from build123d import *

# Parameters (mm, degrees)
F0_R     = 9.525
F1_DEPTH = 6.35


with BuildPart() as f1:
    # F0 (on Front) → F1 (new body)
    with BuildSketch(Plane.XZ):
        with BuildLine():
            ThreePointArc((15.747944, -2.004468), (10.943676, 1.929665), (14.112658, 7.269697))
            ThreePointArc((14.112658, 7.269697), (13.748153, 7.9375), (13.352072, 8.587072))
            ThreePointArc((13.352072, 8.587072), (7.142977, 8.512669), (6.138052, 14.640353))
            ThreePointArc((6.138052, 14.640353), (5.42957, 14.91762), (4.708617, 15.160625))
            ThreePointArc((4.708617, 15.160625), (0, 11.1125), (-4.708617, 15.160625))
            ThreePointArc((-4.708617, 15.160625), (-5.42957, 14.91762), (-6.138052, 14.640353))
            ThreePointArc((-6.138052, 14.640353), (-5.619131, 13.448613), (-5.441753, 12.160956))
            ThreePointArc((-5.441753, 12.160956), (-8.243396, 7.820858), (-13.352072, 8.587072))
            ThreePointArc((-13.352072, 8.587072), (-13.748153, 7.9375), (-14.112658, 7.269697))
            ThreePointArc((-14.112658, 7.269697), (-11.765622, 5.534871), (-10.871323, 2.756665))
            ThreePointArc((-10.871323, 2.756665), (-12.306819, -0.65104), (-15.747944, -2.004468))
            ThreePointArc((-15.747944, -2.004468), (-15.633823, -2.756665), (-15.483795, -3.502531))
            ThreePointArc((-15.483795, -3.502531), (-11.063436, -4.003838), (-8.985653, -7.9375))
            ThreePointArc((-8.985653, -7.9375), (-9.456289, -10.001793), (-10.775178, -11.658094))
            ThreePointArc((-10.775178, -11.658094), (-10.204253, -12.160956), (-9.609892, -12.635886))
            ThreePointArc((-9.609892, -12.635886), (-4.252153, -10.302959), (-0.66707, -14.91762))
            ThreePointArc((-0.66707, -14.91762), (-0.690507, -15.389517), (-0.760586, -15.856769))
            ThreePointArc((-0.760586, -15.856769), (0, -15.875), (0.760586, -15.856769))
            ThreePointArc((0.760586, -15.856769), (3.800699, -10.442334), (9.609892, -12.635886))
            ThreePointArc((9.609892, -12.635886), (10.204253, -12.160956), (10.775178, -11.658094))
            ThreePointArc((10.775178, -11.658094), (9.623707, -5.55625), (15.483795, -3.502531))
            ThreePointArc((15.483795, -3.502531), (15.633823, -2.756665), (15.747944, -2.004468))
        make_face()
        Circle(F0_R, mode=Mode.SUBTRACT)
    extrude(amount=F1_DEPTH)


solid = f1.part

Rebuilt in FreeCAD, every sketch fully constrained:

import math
import FreeCAD as App
import Part
import Sketcher
Q = App.Units.Quantity

doc = App.newDocument("Part")
body = doc.addObject("PartDesign::Body", "Body")

# Sketch on XZ plane
sketch1 = doc.addObject("Sketcher::SketchObject", "Sketch")
body.addObject(sketch1)
sketch1.AttachmentSupport = (doc.XZ_Plane, [""])
sketch1.MapMode = "FlatFace"
sketch1.addGeometry(Part.ArcOfCircle(Part.Circle(App.Vector(15.633823, 2.756664, 0), App.Vector(0, 0, 1), 4.7625), math.radians(108.626927), math.radians(271.373078)), False)
sketch1.addGeometry(Part.ArcOfCircle(Part.Circle(App.Vector(-0.000101, -0.00005, 0), App.Vector(0, 0, 1), 15.875112), math.radians(27.253845), math.radians(32.746102)), False)
sketch1.addGeometry(Part.ArcOfCircle(Part.Circle(App.Vector(10.204253, 12.160955, 0), App.Vector(0, 0, 1), 4.7625), math.radians(148.626926), math.radians(311.373079)), False)
sketch1.addGeometry(Part.ArcOfCircle(Part.Circle(App.Vector(-0.000044, -0.000116, 0), App.Vector(0, 0, 1), 15.875124), math.radians(67.253867), math.radians(72.746118)), False)
sketch1.addGeometry(Part.ArcOfCircle(Part.Circle(App.Vector(0, 15.875, 0), App.Vector(0, 0, 1), 4.7625), math.radians(-171.373074), math.radians(-8.626926)), False)
sketch1.addGeometry(Part.ArcOfCircle(Part.Circle(App.Vector(0.000044, -0.000116, 0), App.Vector(0, 0, 1), 15.875124), math.radians(107.253882), math.radians(112.746133)), False)
sketch1.addGeometry(Part.ArcOfCircle(Part.Circle(App.Vector(-10.20425, 12.160956, 0), App.Vector(0, 0, 1), 4.762497), math.radians(0.000003), math.radians(31.373093)), False)
sketch1.addGeometry(Part.ArcOfCircle(Part.Circle(App.Vector(-10.204253, 12.160956, 0), App.Vector(0, 0, 1), 4.7625), math.radians(-131.373078), math.radians(0.000005)), False)
sketch1.addGeometry(Part.ArcOfCircle(Part.Circle(App.Vector(0.000101, -0.00005, 0), App.Vector(0, 0, 1), 15.875112), math.radians(147.253898), math.radians(152.746155)), False)
sketch1.addGeometry(Part.ArcOfCircle(Part.Circle(App.Vector(-15.633821, 2.756666, 0), App.Vector(0, 0, 1), 4.762498), math.radians(-0.000011), math.radians(71.373089)), False)
sketch1.addGeometry(Part.ArcOfCircle(Part.Circle(App.Vector(-15.633823, 2.756665, 0), App.Vector(0, 0, 1), 4.7625), math.radians(-91.373075), math.radians(0.000004)), False)
sketch1.addGeometry(Part.ArcOfCircle(Part.Circle(App.Vector(0.000218, 0.000039, 0), App.Vector(0, 0, 1), 15.875222), math.radians(-172.746106), math.radians(-167.253888)), False)
sketch1.addGeometry(Part.ArcOfCircle(Part.Circle(App.Vector(-13.748153, -7.937501, 0), App.Vector(0, 0, 1), 4.7625), math.radians(0.000008), math.radians(111.373075)), False)
sketch1.addGeometry(Part.ArcOfCircle(Part.Circle(App.Vector(-13.748154, -7.937499, 0), App.Vector(0, 0, 1), 4.762501), math.radians(-51.373077), math.radians(-0.000014)), False)
sketch1.addGeometry(Part.ArcOfCircle(Part.Circle(App.Vector(-0.000033, -0.00005, 0), App.Vector(0, 0, 1), 15.874941), math.radians(-132.746186), math.radians(-127.253869)), False)
sketch1.addGeometry(Part.ArcOfCircle(Part.Circle(App.Vector(-5.42957, -14.91762, 0), App.Vector(0, 0, 1), 4.7625), math.radians(-0.000004), math.radians(151.373087)), False)
sketch1.addGeometry(Part.ArcOfCircle(Part.Circle(App.Vector(-5.429665, -14.917614, 0), App.Vector(0, 0, 1), 4.762595), math.radians(-11.37292), math.radians(-0.000074)), False)
sketch1.addGeometry(Part.ArcOfCircle(Part.Circle(App.Vector(0, -0.000297, 0), App.Vector(0, 0, 1), 15.874703), math.radians(-92.746197), math.radians(-87.253803)), False)
sketch1.addGeometry(Part.ArcOfCircle(Part.Circle(App.Vector(5.42957, -14.91762, 0), App.Vector(0, 0, 1), 4.7625), math.radians(28.62692), math.radians(191.373069)), False)
sketch1.addGeometry(Part.ArcOfCircle(Part.Circle(App.Vector(0.000033, -0.00005, 0), App.Vector(0, 0, 1), 15.874941), math.radians(-52.746131), math.radians(-47.253814)), False)
sketch1.addGeometry(Part.ArcOfCircle(Part.Circle(App.Vector(13.748153, -7.9375, 0), App.Vector(0, 0, 1), 4.762499), math.radians(68.626914), math.radians(231.373081)), False)
sketch1.addGeometry(Part.ArcOfCircle(Part.Circle(App.Vector(-0.000218, 0.000039, 0), App.Vector(0, 0, 1), 15.875222), math.radians(-12.746112), math.radians(-7.253894)), False)
sketch1.addGeometry(Part.Circle(App.Vector(0, 0, 0), App.Vector(0, 0, 1), 9.525), False)
sketch1.addConstraint(Sketcher.Constraint("Coincident", 0, 1, 1, 1))
sketch1.addConstraint(Sketcher.Constraint("Coincident", 1, 2, 2, 2))
sketch1.addConstraint(Sketcher.Constraint("Coincident", 2, 1, 3, 1))
sketch1.addConstraint(Sketcher.Constraint("Coincident", 3, 2, 4, 2))
sketch1.addConstraint(Sketcher.Constraint("Coincident", 4, 1, 5, 1))
sketch1.addConstraint(Sketcher.Constraint("Coincident", 5, 2, 6, 2))
sketch1.addConstraint(Sketcher.Constraint("Tangent", 6, 1, 7, 2))
sketch1.addConstraint(Sketcher.Constraint("Coincident", 7, 1, 8, 1))
sketch1.addConstraint(Sketcher.Constraint("Coincident", 8, 2, 9, 2))
sketch1.addConstraint(Sketcher.Constraint("Tangent", 9, 1, 10, 2))
sketch1.addConstraint(Sketcher.Constraint("Coincident", 10, 1, 11, 1))
sketch1.addConstraint(Sketcher.Constraint("Coincident", 11, 2, 12, 2))
sketch1.addConstraint(Sketcher.Constraint("Tangent", 12, 1, 13, 2))
sketch1.addConstraint(Sketcher.Constraint("Coincident", 13, 1, 14, 1))
sketch1.addConstraint(Sketcher.Constraint("Coincident", 14, 2, 15, 2))
sketch1.addConstraint(Sketcher.Constraint("Tangent", 15, 1, 16, 2))
sketch1.addConstraint(Sketcher.Constraint("Coincident", 16, 1, 17, 1))
sketch1.addConstraint(Sketcher.Constraint("Coincident", 17, 2, 18, 2))
sketch1.addConstraint(Sketcher.Constraint("Coincident", 18, 1, 19, 1))
sketch1.addConstraint(Sketcher.Constraint("Coincident", 19, 2, 20, 2))
sketch1.addConstraint(Sketcher.Constraint("Coincident", 20, 1, 21, 1))
sketch1.addConstraint(Sketcher.Constraint("Coincident", 21, 2, 0, 2))
sketch1.addConstraint(Sketcher.Constraint("Coincident", 22, 3, -1, 1))
sketch1.addConstraint(Sketcher.Constraint("Equal", 0, 2))
sketch1.addConstraint(Sketcher.Constraint("Equal", 2, 4))
sketch1.addConstraint(Sketcher.Constraint("Equal", 3, 5))
sketch1.addConstraint(Sketcher.Constraint("Equal", 4, 7))
sketch1.addConstraint(Sketcher.Constraint("Equal", 1, 8))
sketch1.addConstraint(Sketcher.Constraint("Equal", 6, 9))
sketch1.addConstraint(Sketcher.Constraint("Equal", 7, 10))
sketch1.addConstraint(Sketcher.Constraint("Equal", 10, 12))
sketch1.addConstraint(Sketcher.Constraint("Equal", 12, 13))
sketch1.addConstraint(Sketcher.Constraint("Equal", 13, 15))
sketch1.addConstraint(Sketcher.Constraint("Equal", 15, 18))
sketch1.addConstraint(Sketcher.Constraint("Equal", 14, 19))
sketch1.addConstraint(Sketcher.Constraint("Equal", 18, 20))
sketch1.addConstraint(Sketcher.Constraint("Equal", 11, 21))
sketch1.addConstraint(Sketcher.Constraint("Symmetric", 3, 3, 5, 3, -2))
sketch1.addConstraint(Sketcher.Constraint("Symmetric", 2, 3, 6, 3, -2))
sketch1.addConstraint(Sketcher.Constraint("Symmetric", 1, 3, 8, 3, -2))
sketch1.addConstraint(Sketcher.Constraint("Symmetric", 0, 3, 9, 3, -2))
sketch1.addConstraint(Sketcher.Constraint("Symmetric", 15, 3, 18, 3, -2))
sketch1.addConstraint(Sketcher.Constraint("Symmetric", 14, 3, 19, 3, -2))
sketch1.addConstraint(Sketcher.Constraint("Symmetric", 12, 3, 20, 3, -2))
sketch1.addConstraint(Sketcher.Constraint("Symmetric", 11, 3, 21, 3, -2))
sketch1.addConstraint(Sketcher.Constraint("PointOnObject", 4, 3, -2))
sketch1.addConstraint(Sketcher.Constraint("PointOnObject", 17, 3, -2))
sketch1.addConstraint(Sketcher.Constraint("Horizontal", 8, 3, 14, 3))
sketch1.addConstraint(Sketcher.Constraint("Horizontal", 2, 1, 5, 2))
sketch1.addConstraint(Sketcher.Constraint("Horizontal", 7, 3, 6, 1))
sketch1.addConstraint(Sketcher.Constraint("Horizontal", 10, 3, 9, 1))
sketch1.addConstraint(Sketcher.Constraint("Horizontal", 20, 3, 12, 1))
sketch1.addConstraint(Sketcher.Constraint("Horizontal", 18, 3, 15, 1))
sketch1.addConstraint(Sketcher.Constraint("Diameter", 22, Q("0.75 in")))
sketch1.addConstraint(Sketcher.Constraint("Radius", 0, Q("0.1875 in")))
sketch1.addConstraint(Sketcher.Constraint("DistanceY", -1, 1, 4, 3, Q("0.625 in")))
sketch1.addConstraint(Sketcher.Constraint("DistanceY", 12, 3, -1, 1, Q("0.3125 in")))
sketch1.addConstraint(Sketcher.Constraint("Radius", 11, Q("15.875222 mm")))
sketch1.addConstraint(Sketcher.Constraint("Radius", 14, Q("15.874941 mm")))
sketch1.addConstraint(Sketcher.Constraint("Radius", 1, Q("15.875112 mm")))
sketch1.addConstraint(Sketcher.Constraint("Radius", 3, Q("15.875124 mm")))
sketch1.addConstraint(Sketcher.Constraint("Radius", 16, Q("4.762595 mm")))
sketch1.addConstraint(Sketcher.Constraint("Radius", 17, Q("15.874703 mm")))
sketch1.addConstraint(Sketcher.Constraint("DistanceX", 1, 3, -1, 1, Q("0.000101 mm")))
sketch1.addConstraint(Sketcher.Constraint("DistanceX", 2, 1, 2, 3, Q("4.066201 mm")))
sketch1.addConstraint(Sketcher.Constraint("DistanceX", 6, 3, -1, 1, Q("10.20425 mm")))
sketch1.addConstraint(Sketcher.Constraint("DistanceX", 9, 3, -1, 1, Q("15.633821 mm")))
sketch1.addConstraint(Sketcher.Constraint("DistanceX", -1, 1, 11, 3, Q("0.000218 mm")))
sketch1.addConstraint(Sketcher.Constraint("DistanceX", 15, 3, -1, 1, Q("5.42957 mm")))
sketch1.addConstraint(Sketcher.Constraint("DistanceY", 15, 3, -1, 1, Q("14.91762 mm")))
sketch1.addConstraint(Sketcher.Constraint("DistanceY", -1, 1, 7, 1, Q("8.587072 mm")))
sketch1.addConstraint(Sketcher.Constraint("DistanceX", 8, 2, -1, 1, Q("14.112658 mm")))
sketch1.addConstraint(Sketcher.Constraint("DistanceY", 11, 2, -1, 1, Q("3.502531 mm")))
sketch1.addConstraint(Sketcher.Constraint("DistanceX", 13, 1, -1, 1, Q("10.775178 mm")))
sketch1.addConstraint(Sketcher.Constraint("DistanceY", 16, 1, -1, 1, Q("15.856769 mm")))
sketch1.addConstraint(Sketcher.Constraint("DistanceY", 0, 3, 2, 3, Q("9.404291 mm")))
sketch1.addConstraint(Sketcher.Constraint("DistanceY", 3, 3, 0, 3, Q("2.756781 mm")))
sketch1.addConstraint(Sketcher.Constraint("DistanceX", 10, 3, 12, 3, Q("1.88567 mm")))
pad1 = doc.addObject("PartDesign::Pad", "Pad")
body.addObject(pad1)
pad1.Profile = sketch1
pad1.Length = Q("0.25 in")

doc.recompute()
